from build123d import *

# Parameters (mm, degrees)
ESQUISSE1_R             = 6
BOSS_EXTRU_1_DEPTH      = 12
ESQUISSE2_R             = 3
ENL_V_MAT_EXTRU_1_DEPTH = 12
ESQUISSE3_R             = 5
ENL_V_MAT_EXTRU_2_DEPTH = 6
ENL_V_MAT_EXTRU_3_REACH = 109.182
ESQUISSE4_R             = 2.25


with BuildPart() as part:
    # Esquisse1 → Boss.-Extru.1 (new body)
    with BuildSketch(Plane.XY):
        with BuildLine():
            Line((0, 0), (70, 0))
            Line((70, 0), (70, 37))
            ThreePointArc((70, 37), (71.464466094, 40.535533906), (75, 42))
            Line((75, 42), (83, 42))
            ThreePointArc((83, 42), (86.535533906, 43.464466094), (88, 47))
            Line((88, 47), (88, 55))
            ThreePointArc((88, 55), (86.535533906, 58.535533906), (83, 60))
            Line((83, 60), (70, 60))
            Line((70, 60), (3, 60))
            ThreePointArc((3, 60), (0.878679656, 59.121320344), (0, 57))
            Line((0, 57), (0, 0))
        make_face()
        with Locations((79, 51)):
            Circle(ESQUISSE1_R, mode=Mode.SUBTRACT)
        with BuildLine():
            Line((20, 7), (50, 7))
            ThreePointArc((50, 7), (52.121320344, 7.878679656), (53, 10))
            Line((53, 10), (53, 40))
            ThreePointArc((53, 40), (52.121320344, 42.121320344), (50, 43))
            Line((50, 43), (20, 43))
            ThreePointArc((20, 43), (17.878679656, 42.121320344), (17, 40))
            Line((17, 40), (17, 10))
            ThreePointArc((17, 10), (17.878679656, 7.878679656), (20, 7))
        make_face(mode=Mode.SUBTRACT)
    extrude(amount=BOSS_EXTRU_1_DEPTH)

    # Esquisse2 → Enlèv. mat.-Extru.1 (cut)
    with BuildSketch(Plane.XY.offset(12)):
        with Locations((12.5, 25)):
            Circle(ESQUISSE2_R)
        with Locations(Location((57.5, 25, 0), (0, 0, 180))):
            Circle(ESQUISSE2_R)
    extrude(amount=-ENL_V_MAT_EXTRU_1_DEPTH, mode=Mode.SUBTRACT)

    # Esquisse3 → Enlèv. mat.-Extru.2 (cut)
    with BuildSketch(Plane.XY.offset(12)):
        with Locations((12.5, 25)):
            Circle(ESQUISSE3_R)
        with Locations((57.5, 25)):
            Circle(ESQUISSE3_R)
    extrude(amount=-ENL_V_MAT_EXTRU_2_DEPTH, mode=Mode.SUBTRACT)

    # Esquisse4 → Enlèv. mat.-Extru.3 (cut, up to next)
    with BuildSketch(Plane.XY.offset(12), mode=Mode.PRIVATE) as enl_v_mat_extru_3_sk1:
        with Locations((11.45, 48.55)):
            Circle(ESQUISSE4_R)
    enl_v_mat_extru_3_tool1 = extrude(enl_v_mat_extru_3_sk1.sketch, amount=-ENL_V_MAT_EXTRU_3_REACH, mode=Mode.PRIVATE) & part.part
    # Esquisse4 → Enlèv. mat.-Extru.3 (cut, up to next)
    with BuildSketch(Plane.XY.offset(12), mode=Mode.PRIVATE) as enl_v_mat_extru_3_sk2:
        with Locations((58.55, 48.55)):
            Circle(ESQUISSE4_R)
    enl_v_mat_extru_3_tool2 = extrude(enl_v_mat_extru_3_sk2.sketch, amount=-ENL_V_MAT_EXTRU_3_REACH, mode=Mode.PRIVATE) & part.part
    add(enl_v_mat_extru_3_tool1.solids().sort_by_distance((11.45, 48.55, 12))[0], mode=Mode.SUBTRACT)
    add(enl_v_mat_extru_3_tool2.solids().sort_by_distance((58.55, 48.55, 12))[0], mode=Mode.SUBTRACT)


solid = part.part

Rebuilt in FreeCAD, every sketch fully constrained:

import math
import FreeCAD as App
import Part
import Sketcher

V = App.Vector

doc = App.newDocument("Part")
body = doc.addObject("PartDesign::Body", "Body")

sketch1 = doc.addObject("Sketcher::SketchObject", "Sketch")
body.addObject(sketch1)
sketch1.AttachmentSupport = (doc.XY_Plane, [""])
sketch1.MapMode = "FlatFace"
sketch1.addGeometry(Part.LineSegment(V(0, 0, 0), V(70, 0, 0)), False)
sketch1.addGeometry(Part.LineSegment(V(70, 0, 0), V(70, 37, 0)), False)
sketch1.addGeometry(Part.ArcOfCircle(Part.Circle(V(75, 37, 0), V(0, 0, 1), 5), math.radians(90), math.radians(180)), False)
sketch1.addGeometry(Part.LineSegment(V(75, 42, 0), V(83, 42, 0)), False)
sketch1.addGeometry(Part.ArcOfCircle(Part.Circle(V(83, 47, 0), V(0, 0, 1), 5), math.radians(-90), math.radians(0)), False)
sketch1.addGeometry(Part.LineSegment(V(88, 47, 0), V(88, 55, 0)), False)
sketch1.addGeometry(Part.ArcOfCircle(Part.Circle(V(83, 55, 0), V(0, 0, 1), 5), math.radians(0), math.radians(90)), False)
sketch1.addGeometry(Part.LineSegment(V(83, 60, 0), V(3, 60, 0)), False)
sketch1.addGeometry(Part.ArcOfCircle(Part.Circle(V(3, 57, 0), V(0, 0, 1), 3), math.radians(90), math.radians(180)), False)
sketch1.addGeometry(Part.LineSegment(V(0, 57, 0), V(0, 0, 0)), False)
sketch1.addGeometry(Part.LineSegment(V(50, 7, 0), V(20, 7, 0)), False)
sketch1.addGeometry(Part.ArcOfCircle(Part.Circle(V(20, 10, 0), V(0, 0, 1), 3), math.radians(180), math.radians(270)), False)
sketch1.addGeometry(Part.LineSegment(V(17, 10, 0), V(17, 40, 0)), False)
sketch1.addGeometry(Part.ArcOfCircle(Part.Circle(V(20, 40, 0), V(0, 0, 1), 3), math.radians(90), math.radians(180)), False)
sketch1.addGeometry(Part.LineSegment(V(20, 43, 0), V(50, 43, 0)), False)
sketch1.addGeometry(Part.ArcOfCircle(Part.Circle(V(50, 40, 0), V(0, 0, 1), 3), math.radians(0), math.radians(90)), False)
sketch1.addGeometry(Part.LineSegment(V(53, 40, 0), V(53, 10, 0)), False)
sketch1.addGeometry(Part.ArcOfCircle(Part.Circle(V(50, 10, 0), V(0, 0, 1), 3), math.radians(-90), math.radians(0)), False)
sketch1.addGeometry(Part.Circle(V(79, 51, 0), V(0, 0, 1), 6), False)
sketch1.addConstraint(Sketcher.Constraint("Coincident", 0, 2, 1, 1))
sketch1.addConstraint(Sketcher.Constraint("Tangent", 1, 2, 2, 2))
sketch1.addConstraint(Sketcher.Constraint("Tangent", 2, 1, 3, 1))
sketch1.addConstraint(Sketcher.Constraint("Tangent", 3, 2, 4, 1))
sketch1.addConstraint(Sketcher.Constraint("Tangent", 4, 2, 5, 1))
sketch1.addConstraint(Sketcher.Constraint("Tangent", 5, 2, 6, 1))
sketch1.addConstraint(Sketcher.Constraint("Tangent", 6, 2, 7, 1))
sketch1.addConstraint(Sketcher.Constraint("Tangent", 7, 2, 8, 1))
sketch1.addConstraint(Sketcher.Constraint("Tangent", 8, 2, 9, 1))
sketch1.addConstraint(Sketcher.Constraint("Coincident", 9, 2, 0, 1))
sketch1.addConstraint(Sketcher.Constraint("Tangent", 10, 2, 11, 2))
sketch1.addConstraint(Sketcher.Constraint("Tangent", 11, 1, 12, 1))
sketch1.addConstraint(Sketcher.Constraint("Tangent", 12, 2, 13, 2))
sketch1.addConstraint(Sketcher.Constraint("Tangent", 13, 1, 14, 1))
sketch1.addConstraint(Sketcher.Constraint("Tangent", 14, 2, 15, 2))
sketch1.addConstraint(Sketcher.Constraint("Tangent", 15, 1, 16, 1))
sketch1.addConstraint(Sketcher.Constraint("Tangent", 16, 2, 17, 2))
sketch1.addConstraint(Sketcher.Constraint("Tangent", 17, 1, 10, 1))
sketch1.addConstraint(Sketcher.Constraint("Horizontal", 0))
sketch1.addConstraint(Sketcher.Constraint("Vertical", 1))
sketch1.addConstraint(Sketcher.Constraint("Horizontal", 3))
sketch1.addConstraint(Sketcher.Constraint("Vertical", 5))
sketch1.addConstraint(Sketcher.Constraint("Horizontal", 7))
sketch1.addConstraint(Sketcher.Constraint("Vertical", 9))
sketch1.addConstraint(Sketcher.Constraint("Horizontal", 10))
sketch1.addConstraint(Sketcher.Constraint("Vertical", 12))
sketch1.addConstraint(Sketcher.Constraint("Horizontal", 14))
sketch1.addConstraint(Sketcher.Constraint("Vertical", 16))
sketch1.addConstraint(Sketcher.Constraint("Coincident", 9, 2, -1, 1))
sketch1.addConstraint(Sketcher.Constraint("Equal", 2, 4))
sketch1.addConstraint(Sketcher.Constraint("Equal", 4, 6))
sketch1.addConstraint(Sketcher.Constraint("Equal", 8, 11))
sketch1.addConstraint(Sketcher.Constraint("Equal", 11, 13))
sketch1.addConstraint(Sketcher.Constraint("Equal", 13, 15))
sketch1.addConstraint(Sketcher.Constraint("Equal", 15, 17))
sketch1.addConstraint(Sketcher.Constraint("Equal", 3, 5))
sketch1.addConstraint(Sketcher.Constraint("Equal", 14, 12))
sketch1.addConstraint(Sketcher.Constraint("Diameter", 18, 12.0))
sketch1.addConstraint(Sketcher.Constraint("Radius", 2, 5.0))
sketch1.addConstraint(Sketcher.Constraint("Radius", 8, 3.0))
sketch1.addConstraint(Sketcher.Constraint("DistanceX", 0, 1, 0, 2, 70.0))
sketch1.addConstraint(Sketcher.Constraint("DistanceX", 3, 1, 3, 2, 8.0))
sketch1.addConstraint(Sketcher.Constraint("DistanceX", 10, 2, 10, 1, 30.0))
sketch1.addConstraint(Sketcher.Constraint("DistanceY", 1, 1, 1, 2, 37.0))
sketch1.addConstraint(Sketcher.Constraint("DistanceX", -1, 1, 11, 3, 20.0))
sketch1.addConstraint(Sketcher.Constraint("DistanceY", -1, 1, 11, 3, 10.0))
sketch1.addConstraint(Sketcher.Constraint("DistanceX", -1, 1, 18, 3, 79.0))
sketch1.addConstraint(Sketcher.Constraint("DistanceY", -1, 1, 18, 3, 51.0))
pad1 = doc.addObject("PartDesign::Pad", "Pad")
body.addObject(pad1)
pad1.Profile = sketch1
pad1.Length = 12

sketch2 = doc.addObject("Sketcher::SketchObject", "Sketch001")
body.addObject(sketch2)
sketch2.AttachmentSupport = (doc.XY_Plane, [""])
sketch2.MapMode = "FlatFace"
sketch2.AttachmentOffset = App.Placement(V(0, 0, 12), App.Rotation())
sketch2.addGeometry(Part.Circle(V(12.5, 25, 0), V(0, 0, 1), 3), False)
sketch2.addGeometry(Part.Circle(V(57.5, 25, 0), V(0, 0, 1), 3), False)
sketch2.addConstraint(Sketcher.Constraint("Equal", 0, 1))
sketch2.addConstraint(Sketcher.Constraint("Horizontal", 0, 3, 1, 3))
sketch2.addConstraint(Sketcher.Constraint("Diameter", 0, 6.0))
sketch2.addConstraint(Sketcher.Constraint("DistanceY", -1, 1, 0, 3, 25.0))
sketch2.addConstraint(Sketcher.Constraint("DistanceX", 0, 3, 1, 3, 45.0))
sketch2.addConstraint(Sketcher.Constraint("DistanceX", -1, 1, 0, 3, 12.5))
pocket1 = doc.addObject("PartDesign::Pocket", "Pocket")
body.addObject(pocket1)
pocket1.Profile = sketch2
pocket1.Length = 12

sketch3 = doc.addObject("Sketcher::SketchObject", "Sketch002")
body.addObject(sketch3)
sketch3.AttachmentSupport = (doc.XY_Plane, [""])
sketch3.MapMode = "FlatFace"
sketch3.AttachmentOffset = App.Placement(V(0, 0, 12), App.Rotation())
sketch3.addGeometry(Part.Circle(V(12, 25, 0), V(0, 0, 1), 5), False)
sketch3.addGeometry(Part.Circle(V(58, 25, 0), V(0, 0, 1), 5), False)
sketch3.addConstraint(Sketcher.Constraint("Equal", 0, 1))
sketch3.addConstraint(Sketcher.Constraint("Horizontal", 0, 3, 1, 3))
sketch3.addConstraint(Sketcher.Constraint("Diameter", 0, 10.0))
sketch3.addConstraint(Sketcher.Constraint("DistanceY", -1, 1, 0, 3, 25.0))
sketch3.addConstraint(Sketcher.Constraint("DistanceX", 0, 3, 1, 3, 45.0))
sketch3.addConstraint(Sketcher.Constraint("DistanceX", -1, 1, 0, 3, 12.5))
pocket2 = doc.addObject("PartDesign::Pocket", "Pocket001")
body.addObject(pocket2)
pocket2.Profile = sketch3
pocket2.Length = 6

sketch4 = doc.addObject("Sketcher::SketchObject", "Sketch003")
body.addObject(sketch4)
sketch4.AttachmentSupport = (doc.XY_Plane, [""])
sketch4.MapMode = "FlatFace"
sketch4.AttachmentOffset = App.Placement(V(0, 0, 12), App.Rotation())
sketch4.addGeometry(Part.Circle(V(11.4, 48.5, 0), V(0, 0, 1), 2.2), False)
sketch4.addConstraint(Sketcher.Constraint("Diameter", 0, 4.5))
sketch4.addConstraint(Sketcher.Constraint("DistanceX", -1, 1, 0, 3, 11.45))
sketch4.addConstraint(Sketcher.Constraint("DistanceY", -1, 1, 0, 3, 48.55))
pocket3 = doc.addObject("PartDesign::Pocket", "Pocket002")
body.addObject(pocket3)
pocket3.Profile = sketch4
pocket3.Type = "UpToFirst"

sketch5 = doc.addObject("Sketcher::SketchObject", "Sketch004")
body.addObject(sketch5)
sketch5.AttachmentSupport = (doc.XY_Plane, [""])
sketch5.MapMode = "FlatFace"
sketch5.AttachmentOffset = App.Placement(V(0, 0, 12), App.Rotation())
sketch5.addGeometry(Part.Circle(V(58.5, 48.5, 0), V(0, 0, 1), 2.2), False)
sketch5.addConstraint(Sketcher.Constraint("Diameter", 0, 4.5))
sketch5.addConstraint(Sketcher.Constraint("DistanceX", -1, 1, 0, 3, 58.55))
sketch5.addConstraint(Sketcher.Constraint("DistanceY", -1, 1, 0, 3, 48.55))
pocket4 = doc.addObject("PartDesign::Pocket", "Pocket003")
body.addObject(pocket4)
pocket4.Profile = sketch5
pocket4.Type = "UpToFirst"

doc.recompute()
